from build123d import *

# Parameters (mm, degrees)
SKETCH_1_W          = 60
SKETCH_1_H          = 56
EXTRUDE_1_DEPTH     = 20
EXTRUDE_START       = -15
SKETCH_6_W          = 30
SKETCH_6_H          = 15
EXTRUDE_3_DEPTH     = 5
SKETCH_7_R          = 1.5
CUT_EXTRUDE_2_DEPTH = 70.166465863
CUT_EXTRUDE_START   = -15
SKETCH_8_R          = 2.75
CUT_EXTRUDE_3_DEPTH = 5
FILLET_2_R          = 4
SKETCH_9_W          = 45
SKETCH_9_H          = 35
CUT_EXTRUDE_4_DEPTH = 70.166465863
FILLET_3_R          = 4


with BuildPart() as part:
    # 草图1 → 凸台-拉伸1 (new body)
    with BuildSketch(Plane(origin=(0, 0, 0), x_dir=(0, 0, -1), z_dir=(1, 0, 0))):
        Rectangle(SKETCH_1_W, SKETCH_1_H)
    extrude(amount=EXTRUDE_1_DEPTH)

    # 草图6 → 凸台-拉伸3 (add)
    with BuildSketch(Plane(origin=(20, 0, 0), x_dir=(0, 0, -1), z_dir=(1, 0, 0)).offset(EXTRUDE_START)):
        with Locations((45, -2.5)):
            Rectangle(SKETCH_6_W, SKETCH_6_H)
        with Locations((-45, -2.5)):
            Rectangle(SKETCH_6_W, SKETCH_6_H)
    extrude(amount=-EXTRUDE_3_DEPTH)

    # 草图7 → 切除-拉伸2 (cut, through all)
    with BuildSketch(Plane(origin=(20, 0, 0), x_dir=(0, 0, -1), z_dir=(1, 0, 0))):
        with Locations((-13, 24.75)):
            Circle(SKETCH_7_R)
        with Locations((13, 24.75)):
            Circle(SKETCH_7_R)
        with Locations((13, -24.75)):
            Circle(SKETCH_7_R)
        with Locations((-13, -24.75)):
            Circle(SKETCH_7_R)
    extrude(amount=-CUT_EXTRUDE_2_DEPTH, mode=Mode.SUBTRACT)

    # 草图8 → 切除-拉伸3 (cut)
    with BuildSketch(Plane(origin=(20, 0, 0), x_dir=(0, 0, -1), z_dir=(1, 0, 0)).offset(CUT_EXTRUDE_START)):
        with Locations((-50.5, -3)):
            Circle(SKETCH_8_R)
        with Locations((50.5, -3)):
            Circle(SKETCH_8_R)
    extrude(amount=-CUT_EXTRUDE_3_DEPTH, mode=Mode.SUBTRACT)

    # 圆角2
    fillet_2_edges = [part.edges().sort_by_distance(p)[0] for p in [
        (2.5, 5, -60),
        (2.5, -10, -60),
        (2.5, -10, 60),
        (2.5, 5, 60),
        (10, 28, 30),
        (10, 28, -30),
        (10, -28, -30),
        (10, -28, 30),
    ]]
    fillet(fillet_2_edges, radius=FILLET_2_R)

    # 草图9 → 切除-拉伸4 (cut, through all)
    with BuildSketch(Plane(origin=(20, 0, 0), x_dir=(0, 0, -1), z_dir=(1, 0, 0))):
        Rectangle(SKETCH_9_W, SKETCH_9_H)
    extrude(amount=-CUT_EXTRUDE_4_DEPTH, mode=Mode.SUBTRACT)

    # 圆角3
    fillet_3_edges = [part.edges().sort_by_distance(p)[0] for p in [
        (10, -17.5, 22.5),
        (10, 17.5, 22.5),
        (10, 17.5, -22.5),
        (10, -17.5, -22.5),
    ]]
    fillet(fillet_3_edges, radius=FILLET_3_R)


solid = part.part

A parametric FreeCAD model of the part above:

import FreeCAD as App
import Part
import Sketcher


def edges_at(feature, points):
    """Names of the edges that pass closest to the given points."""
    edges = feature.Shape.Edges
    near = lambda p: min(range(len(edges)), key=lambda i: edges[i].distToShape(Part.Vertex(*p))[0])
    return sorted({f"Edge{near(p) + 1}" for p in points})

doc = App.newDocument("Part")
body = doc.addObject("PartDesign::Body", "Body")

# Sketch on YZ plane
sketch1 = body.newObject("Sketcher::SketchObject", "Sketch")
sketch1.AttachmentSupport = (doc.getObject("YZ_Plane"), [""])
sketch1.MapMode = "FlatFace"
sketch1.addGeometry([
    Part.LineSegment(App.Vector(28, 30, 0), App.Vector(-28, 30, 0)),
    Part.LineSegment(App.Vector(-28, 30, 0), App.Vector(-28, -30, 0)),
    Part.LineSegment(App.Vector(-28, -30, 0), App.Vector(28, -30, 0)),
    Part.LineSegment(App.Vector(28, -30, 0), App.Vector(28, 30, 0)),
], False)
sketch1.addConstraint([
    Sketcher.Constraint("Coincident", 0, 2, 1, 1),
    Sketcher.Constraint("Coincident", 1, 2, 2, 1),
    Sketcher.Constraint("Coincident", 2, 2, 3, 1),
    Sketcher.Constraint("Coincident", 3, 2, 0, 1),
    Sketcher.Constraint("Horizontal", 0),
    Sketcher.Constraint("Vertical", 1),
    Sketcher.Constraint("Horizontal", 2),
    Sketcher.Constraint("Vertical", 3),
    Sketcher.Constraint("Symmetric", 0, 2, 2, 2, -1, 1),
    Sketcher.Constraint("DistanceX", 0, 2, 0, 1, 56.0),
    Sketcher.Constraint("DistanceY", 1, 2, 1, 1, 60.0),
])
pad1 = body.newObject("PartDesign::Pad", "Pad")
pad1.Profile = sketch1
pad1.Length = 20

# Sketch on YZ plane
sketch2 = body.newObject("Sketcher::SketchObject", "Sketch001")
sketch2.AttachmentSupport = (doc.getObject("YZ_Plane"), [""])
sketch2.MapMode = "FlatFace"
sketch2.AttachmentOffset = App.Placement(App.Vector(0, 0, 5), App.Rotation())
sketch2.addGeometry([
    Part.LineSegment(App.Vector(5, -30, 0), App.Vector(-10, -30, 0)),  # 0
    Part.LineSegment(App.Vector(-10, -30, 0), App.Vector(-10, -60, 0)),  # 1
    Part.LineSegment(App.Vector(-10, -60, 0), App.Vector(5, -60, 0)),  # 2
    Part.LineSegment(App.Vector(5, -60, 0), App.Vector(5, -30, 0)),  # 3
    Part.LineSegment(App.Vector(5, 60, 0), App.Vector(-10, 60, 0)),  # 4
    Part.LineSegment(App.Vector(-10, 60, 0), App.Vector(-10, 30, 0)),  # 5
    Part.LineSegment(App.Vector(-10, 30, 0), App.Vector(5, 30, 0)),  # 6
    Part.LineSegment(App.Vector(5, 30, 0), App.Vector(5, 60, 0)),  # 7
], False)
sketch2.addConstraint([
    Sketcher.Constraint("Coincident", 0, 2, 1, 1),
    Sketcher.Constraint("Coincident", 1, 2, 2, 1),
    Sketcher.Constraint("Coincident", 2, 2, 3, 1),
    Sketcher.Constraint("Coincident", 3, 2, 0, 1),
    Sketcher.Constraint("Coincident", 4, 2, 5, 1),
    Sketcher.Constraint("Coincident", 5, 2, 6, 1),
    Sketcher.Constraint("Coincident", 6, 2, 7, 1),
    Sketcher.Constraint("Coincident", 7, 2, 4, 1),
    Sketcher.Constraint("Horizontal", 0),
    Sketcher.Constraint("Vertical", 1),
    Sketcher.Constraint("Horizontal", 2),
    Sketcher.Constraint("Vertical", 3),
    Sketcher.Constraint("Horizontal", 4),
    Sketcher.Constraint("Vertical", 5),
    Sketcher.Constraint("Horizontal", 6),
    Sketcher.Constraint("Vertical", 7),
    Sketcher.Constraint("Symmetric", 1, 2, 4, 2, -1),
    Sketcher.Constraint("Symmetric", 3, 2, 6, 2, -1),
    Sketcher.Constraint("DistanceX", 0, 2, 0, 1, 15.0),
    Sketcher.Constraint("DistanceY", 1, 2, 1, 1, 30.0),
    Sketcher.Constraint("DistanceX", 0, 2, -1, 1, 10.0),
    Sketcher.Constraint("DistanceY", 0, 2, -1, 1, 30.0),
])
pad2 = body.newObject("PartDesign::Pad", "Pad001")
pad2.Profile = sketch2
pad2.Length = 5
pad2.Reversed = True

# Sketch on YZ plane
sketch3 = body.newObject("Sketcher::SketchObject", "Sketch002")
sketch3.AttachmentSupport = (doc.getObject("YZ_Plane"), [""])
sketch3.MapMode = "FlatFace"
sketch3.AttachmentOffset = App.Placement(App.Vector(0, 0, 20), App.Rotation())
sketch3.addGeometry([
    Part.Circle(App.Vector(24.75, 13, 0), App.Vector(0, 0, 1), 1.5),
    Part.Circle(App.Vector(24.75, -13, 0), App.Vector(0, 0, 1), 1.5),
    Part.Circle(App.Vector(-24.75, -13, 0), App.Vector(0, 0, 1), 1.5),
    Part.Circle(App.Vector(-24.75, 13, 0), App.Vector(0, 0, 1), 1.5),
], False)
sketch3.addConstraint([
    Sketcher.Constraint("Equal", 0, 1),
    Sketcher.Constraint("Equal", 1, 2),
    Sketcher.Constraint("Equal", 2, 3),
    Sketcher.Constraint("Symmetric", 0, 3, 2, 3, -1, 1),
    Sketcher.Constraint("Symmetric", 1, 3, 3, 3, -1, 1),
    Sketcher.Constraint("Symmetric", 1, 3, 2, 3, -2),
    Sketcher.Constraint("Diameter", 0, 3.0),
    Sketcher.Constraint("DistanceY", -1, 1, 0, 3, 13.0),
    Sketcher.Constraint("DistanceX", 2, 3, 1, 3, 49.5),
])
pocket1 = body.newObject("PartDesign::Pocket", "Pocket")
pocket1.Profile = sketch3
pocket1.Type = "ThroughAll"

# Sketch on YZ plane
sketch4 = body.newObject("Sketcher::SketchObject", "Sketch003")
sketch4.AttachmentSupport = (doc.getObject("YZ_Plane"), [""])
sketch4.MapMode = "FlatFace"
sketch4.AttachmentOffset = App.Placement(App.Vector(0, 0, 5), App.Rotation())
sketch4.addGeometry([
    Part.Circle(App.Vector(-3, 50.5, 0), App.Vector(0, 0, 1), 2.75),
    Part.Circle(App.Vector(-3, -50.5, 0), App.Vector(0, 0, 1), 2.75),
], False)
sketch4.addConstraint([
    Sketcher.Constraint("Equal", 0, 1),
    Sketcher.Constraint("Symmetric", 0, 3, 1, 3, -1),
    Sketcher.Constraint("Diameter", 0, 5.5),
    Sketcher.Constraint("DistanceX", 0, 3, -1, 1, 3.0),
    Sketcher.Constraint("DistanceY", 1, 3, 0, 3, 101.0),
])
pocket2 = body.newObject("PartDesign::Pocket", "Pocket001")
pocket2.Profile = sketch4
pocket2.Length = 5
doc.recompute()

fillet = body.newObject("PartDesign::Fillet", "Fillet")
fillet.Base = (pocket2, edges_at(pocket2, [
    (2.5, 5, -60),
    (2.5, -10, -60),
    (2.5, -10, 60),
    (2.5, 5, 60),
    (10, 28, 30),
    (10, 28, -30),
    (10, -28, -30),
    (10, -28, 30),
]))
fillet.Radius = 4

# Sketch on YZ plane
sketch5 = body.newObject("Sketcher::SketchObject", "Sketch004")
sketch5.AttachmentSupport = (doc.getObject("YZ_Plane"), [""])
sketch5.MapMode = "FlatFace"
sketch5.AttachmentOffset = App.Placement(App.Vector(0, 0, 20), App.Rotation())
sketch5.addGeometry([
    Part.LineSegment(App.Vector(17.5, 22.5, 0), App.Vector(-17.5, 22.5, 0)),
    Part.LineSegment(App.Vector(-17.5, 22.5, 0), App.Vector(-17.5, -22.5, 0)),
    Part.LineSegment(App.Vector(-17.5, -22.5, 0), App.Vector(17.5, -22.5, 0)),
    Part.LineSegment(App.Vector(17.5, -22.5, 0), App.Vector(17.5, 22.5, 0)),
], False)
sketch5.addConstraint([
    Sketcher.Constraint("Coincident", 0, 2, 1, 1),
    Sketcher.Constraint("Coincident", 1, 2, 2, 1),
    Sketcher.Constraint("Coincident", 2, 2, 3, 1),
    Sketcher.Constraint("Coincident", 3, 2, 0, 1),
    Sketcher.Constraint("Horizontal", 0),
    Sketcher.Constraint("Vertical", 1),
    Sketcher.Constraint("Horizontal", 2),
    Sketcher.Constraint("Vertical", 3),
    Sketcher.Constraint("Symmetric", 0, 2, 2, 2, -1, 1),
    Sketcher.Constraint("DistanceX", 0, 2, 0, 1, 35.0),
    Sketcher.Constraint("DistanceY", 1, 2, 1, 1, 45.0),
])
pocket3 = body.newObject("PartDesign::Pocket", "Pocket002")
pocket3.Profile = sketch5
pocket3.Type = "ThroughAll"
doc.recompute()

fillet2 = body.newObject("PartDesign::Fillet", "Fillet001")
fillet2.Base = (pocket3, edges_at(pocket3, [
    (10, -17.5, 22.5),
    (10, 17.5, 22.5),
    (10, 17.5, -22.5),
    (10, -17.5, -22.5),
]))
fillet2.Radius = 4

doc.recompute()
